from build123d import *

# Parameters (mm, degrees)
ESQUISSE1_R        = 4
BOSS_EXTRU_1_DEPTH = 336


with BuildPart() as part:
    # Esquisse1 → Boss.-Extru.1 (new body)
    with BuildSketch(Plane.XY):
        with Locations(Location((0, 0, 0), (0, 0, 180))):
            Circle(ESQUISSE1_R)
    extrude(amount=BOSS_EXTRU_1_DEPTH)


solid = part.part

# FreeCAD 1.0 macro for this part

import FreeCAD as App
import Part
import Sketcher

V = App.Vector

doc = App.newDocument("Part")
params = doc.addObject("Spreadsheet::Sheet", "Params")
for row, (alias, value) in enumerate([
    ("sketch1_diameter", "8 mm"),
    ("pad1_length", "336 mm"),
], start=1):
    params.set(f"A{row}", alias)
    params.set(f"B{row}", "=" + value)
    params.setAlias(f"B{row}", alias)

body = doc.addObject("PartDesign::Body", "Body")

sketch1 = doc.addObject("Sketcher::SketchObject", "Sketch")
body.addObject(sketch1)
sketch1.AttachmentSupport = (doc.XY_Plane, [""])
sketch1.MapMode = "FlatFace"
sketch1.addGeometry(Part.Circle(V(0, 0, 0), V(0, 0, 1), 4), False)
sketch1.addConstraint(Sketcher.Constraint("Coincident", 0, 3, -1, 1))
sketch1.addConstraint(Sketcher.Constraint("Diameter", 0, 8.0))
sketch1.setExpression("Constraints[1]", "Params.sketch1_diameter")
pad1 = doc.addObject("PartDesign::Pad", "Pad")
body.addObject(pad1)
pad1.Profile = sketch1
pad1.setExpression("Length", "Params.pad1_length")

doc.recompute()
